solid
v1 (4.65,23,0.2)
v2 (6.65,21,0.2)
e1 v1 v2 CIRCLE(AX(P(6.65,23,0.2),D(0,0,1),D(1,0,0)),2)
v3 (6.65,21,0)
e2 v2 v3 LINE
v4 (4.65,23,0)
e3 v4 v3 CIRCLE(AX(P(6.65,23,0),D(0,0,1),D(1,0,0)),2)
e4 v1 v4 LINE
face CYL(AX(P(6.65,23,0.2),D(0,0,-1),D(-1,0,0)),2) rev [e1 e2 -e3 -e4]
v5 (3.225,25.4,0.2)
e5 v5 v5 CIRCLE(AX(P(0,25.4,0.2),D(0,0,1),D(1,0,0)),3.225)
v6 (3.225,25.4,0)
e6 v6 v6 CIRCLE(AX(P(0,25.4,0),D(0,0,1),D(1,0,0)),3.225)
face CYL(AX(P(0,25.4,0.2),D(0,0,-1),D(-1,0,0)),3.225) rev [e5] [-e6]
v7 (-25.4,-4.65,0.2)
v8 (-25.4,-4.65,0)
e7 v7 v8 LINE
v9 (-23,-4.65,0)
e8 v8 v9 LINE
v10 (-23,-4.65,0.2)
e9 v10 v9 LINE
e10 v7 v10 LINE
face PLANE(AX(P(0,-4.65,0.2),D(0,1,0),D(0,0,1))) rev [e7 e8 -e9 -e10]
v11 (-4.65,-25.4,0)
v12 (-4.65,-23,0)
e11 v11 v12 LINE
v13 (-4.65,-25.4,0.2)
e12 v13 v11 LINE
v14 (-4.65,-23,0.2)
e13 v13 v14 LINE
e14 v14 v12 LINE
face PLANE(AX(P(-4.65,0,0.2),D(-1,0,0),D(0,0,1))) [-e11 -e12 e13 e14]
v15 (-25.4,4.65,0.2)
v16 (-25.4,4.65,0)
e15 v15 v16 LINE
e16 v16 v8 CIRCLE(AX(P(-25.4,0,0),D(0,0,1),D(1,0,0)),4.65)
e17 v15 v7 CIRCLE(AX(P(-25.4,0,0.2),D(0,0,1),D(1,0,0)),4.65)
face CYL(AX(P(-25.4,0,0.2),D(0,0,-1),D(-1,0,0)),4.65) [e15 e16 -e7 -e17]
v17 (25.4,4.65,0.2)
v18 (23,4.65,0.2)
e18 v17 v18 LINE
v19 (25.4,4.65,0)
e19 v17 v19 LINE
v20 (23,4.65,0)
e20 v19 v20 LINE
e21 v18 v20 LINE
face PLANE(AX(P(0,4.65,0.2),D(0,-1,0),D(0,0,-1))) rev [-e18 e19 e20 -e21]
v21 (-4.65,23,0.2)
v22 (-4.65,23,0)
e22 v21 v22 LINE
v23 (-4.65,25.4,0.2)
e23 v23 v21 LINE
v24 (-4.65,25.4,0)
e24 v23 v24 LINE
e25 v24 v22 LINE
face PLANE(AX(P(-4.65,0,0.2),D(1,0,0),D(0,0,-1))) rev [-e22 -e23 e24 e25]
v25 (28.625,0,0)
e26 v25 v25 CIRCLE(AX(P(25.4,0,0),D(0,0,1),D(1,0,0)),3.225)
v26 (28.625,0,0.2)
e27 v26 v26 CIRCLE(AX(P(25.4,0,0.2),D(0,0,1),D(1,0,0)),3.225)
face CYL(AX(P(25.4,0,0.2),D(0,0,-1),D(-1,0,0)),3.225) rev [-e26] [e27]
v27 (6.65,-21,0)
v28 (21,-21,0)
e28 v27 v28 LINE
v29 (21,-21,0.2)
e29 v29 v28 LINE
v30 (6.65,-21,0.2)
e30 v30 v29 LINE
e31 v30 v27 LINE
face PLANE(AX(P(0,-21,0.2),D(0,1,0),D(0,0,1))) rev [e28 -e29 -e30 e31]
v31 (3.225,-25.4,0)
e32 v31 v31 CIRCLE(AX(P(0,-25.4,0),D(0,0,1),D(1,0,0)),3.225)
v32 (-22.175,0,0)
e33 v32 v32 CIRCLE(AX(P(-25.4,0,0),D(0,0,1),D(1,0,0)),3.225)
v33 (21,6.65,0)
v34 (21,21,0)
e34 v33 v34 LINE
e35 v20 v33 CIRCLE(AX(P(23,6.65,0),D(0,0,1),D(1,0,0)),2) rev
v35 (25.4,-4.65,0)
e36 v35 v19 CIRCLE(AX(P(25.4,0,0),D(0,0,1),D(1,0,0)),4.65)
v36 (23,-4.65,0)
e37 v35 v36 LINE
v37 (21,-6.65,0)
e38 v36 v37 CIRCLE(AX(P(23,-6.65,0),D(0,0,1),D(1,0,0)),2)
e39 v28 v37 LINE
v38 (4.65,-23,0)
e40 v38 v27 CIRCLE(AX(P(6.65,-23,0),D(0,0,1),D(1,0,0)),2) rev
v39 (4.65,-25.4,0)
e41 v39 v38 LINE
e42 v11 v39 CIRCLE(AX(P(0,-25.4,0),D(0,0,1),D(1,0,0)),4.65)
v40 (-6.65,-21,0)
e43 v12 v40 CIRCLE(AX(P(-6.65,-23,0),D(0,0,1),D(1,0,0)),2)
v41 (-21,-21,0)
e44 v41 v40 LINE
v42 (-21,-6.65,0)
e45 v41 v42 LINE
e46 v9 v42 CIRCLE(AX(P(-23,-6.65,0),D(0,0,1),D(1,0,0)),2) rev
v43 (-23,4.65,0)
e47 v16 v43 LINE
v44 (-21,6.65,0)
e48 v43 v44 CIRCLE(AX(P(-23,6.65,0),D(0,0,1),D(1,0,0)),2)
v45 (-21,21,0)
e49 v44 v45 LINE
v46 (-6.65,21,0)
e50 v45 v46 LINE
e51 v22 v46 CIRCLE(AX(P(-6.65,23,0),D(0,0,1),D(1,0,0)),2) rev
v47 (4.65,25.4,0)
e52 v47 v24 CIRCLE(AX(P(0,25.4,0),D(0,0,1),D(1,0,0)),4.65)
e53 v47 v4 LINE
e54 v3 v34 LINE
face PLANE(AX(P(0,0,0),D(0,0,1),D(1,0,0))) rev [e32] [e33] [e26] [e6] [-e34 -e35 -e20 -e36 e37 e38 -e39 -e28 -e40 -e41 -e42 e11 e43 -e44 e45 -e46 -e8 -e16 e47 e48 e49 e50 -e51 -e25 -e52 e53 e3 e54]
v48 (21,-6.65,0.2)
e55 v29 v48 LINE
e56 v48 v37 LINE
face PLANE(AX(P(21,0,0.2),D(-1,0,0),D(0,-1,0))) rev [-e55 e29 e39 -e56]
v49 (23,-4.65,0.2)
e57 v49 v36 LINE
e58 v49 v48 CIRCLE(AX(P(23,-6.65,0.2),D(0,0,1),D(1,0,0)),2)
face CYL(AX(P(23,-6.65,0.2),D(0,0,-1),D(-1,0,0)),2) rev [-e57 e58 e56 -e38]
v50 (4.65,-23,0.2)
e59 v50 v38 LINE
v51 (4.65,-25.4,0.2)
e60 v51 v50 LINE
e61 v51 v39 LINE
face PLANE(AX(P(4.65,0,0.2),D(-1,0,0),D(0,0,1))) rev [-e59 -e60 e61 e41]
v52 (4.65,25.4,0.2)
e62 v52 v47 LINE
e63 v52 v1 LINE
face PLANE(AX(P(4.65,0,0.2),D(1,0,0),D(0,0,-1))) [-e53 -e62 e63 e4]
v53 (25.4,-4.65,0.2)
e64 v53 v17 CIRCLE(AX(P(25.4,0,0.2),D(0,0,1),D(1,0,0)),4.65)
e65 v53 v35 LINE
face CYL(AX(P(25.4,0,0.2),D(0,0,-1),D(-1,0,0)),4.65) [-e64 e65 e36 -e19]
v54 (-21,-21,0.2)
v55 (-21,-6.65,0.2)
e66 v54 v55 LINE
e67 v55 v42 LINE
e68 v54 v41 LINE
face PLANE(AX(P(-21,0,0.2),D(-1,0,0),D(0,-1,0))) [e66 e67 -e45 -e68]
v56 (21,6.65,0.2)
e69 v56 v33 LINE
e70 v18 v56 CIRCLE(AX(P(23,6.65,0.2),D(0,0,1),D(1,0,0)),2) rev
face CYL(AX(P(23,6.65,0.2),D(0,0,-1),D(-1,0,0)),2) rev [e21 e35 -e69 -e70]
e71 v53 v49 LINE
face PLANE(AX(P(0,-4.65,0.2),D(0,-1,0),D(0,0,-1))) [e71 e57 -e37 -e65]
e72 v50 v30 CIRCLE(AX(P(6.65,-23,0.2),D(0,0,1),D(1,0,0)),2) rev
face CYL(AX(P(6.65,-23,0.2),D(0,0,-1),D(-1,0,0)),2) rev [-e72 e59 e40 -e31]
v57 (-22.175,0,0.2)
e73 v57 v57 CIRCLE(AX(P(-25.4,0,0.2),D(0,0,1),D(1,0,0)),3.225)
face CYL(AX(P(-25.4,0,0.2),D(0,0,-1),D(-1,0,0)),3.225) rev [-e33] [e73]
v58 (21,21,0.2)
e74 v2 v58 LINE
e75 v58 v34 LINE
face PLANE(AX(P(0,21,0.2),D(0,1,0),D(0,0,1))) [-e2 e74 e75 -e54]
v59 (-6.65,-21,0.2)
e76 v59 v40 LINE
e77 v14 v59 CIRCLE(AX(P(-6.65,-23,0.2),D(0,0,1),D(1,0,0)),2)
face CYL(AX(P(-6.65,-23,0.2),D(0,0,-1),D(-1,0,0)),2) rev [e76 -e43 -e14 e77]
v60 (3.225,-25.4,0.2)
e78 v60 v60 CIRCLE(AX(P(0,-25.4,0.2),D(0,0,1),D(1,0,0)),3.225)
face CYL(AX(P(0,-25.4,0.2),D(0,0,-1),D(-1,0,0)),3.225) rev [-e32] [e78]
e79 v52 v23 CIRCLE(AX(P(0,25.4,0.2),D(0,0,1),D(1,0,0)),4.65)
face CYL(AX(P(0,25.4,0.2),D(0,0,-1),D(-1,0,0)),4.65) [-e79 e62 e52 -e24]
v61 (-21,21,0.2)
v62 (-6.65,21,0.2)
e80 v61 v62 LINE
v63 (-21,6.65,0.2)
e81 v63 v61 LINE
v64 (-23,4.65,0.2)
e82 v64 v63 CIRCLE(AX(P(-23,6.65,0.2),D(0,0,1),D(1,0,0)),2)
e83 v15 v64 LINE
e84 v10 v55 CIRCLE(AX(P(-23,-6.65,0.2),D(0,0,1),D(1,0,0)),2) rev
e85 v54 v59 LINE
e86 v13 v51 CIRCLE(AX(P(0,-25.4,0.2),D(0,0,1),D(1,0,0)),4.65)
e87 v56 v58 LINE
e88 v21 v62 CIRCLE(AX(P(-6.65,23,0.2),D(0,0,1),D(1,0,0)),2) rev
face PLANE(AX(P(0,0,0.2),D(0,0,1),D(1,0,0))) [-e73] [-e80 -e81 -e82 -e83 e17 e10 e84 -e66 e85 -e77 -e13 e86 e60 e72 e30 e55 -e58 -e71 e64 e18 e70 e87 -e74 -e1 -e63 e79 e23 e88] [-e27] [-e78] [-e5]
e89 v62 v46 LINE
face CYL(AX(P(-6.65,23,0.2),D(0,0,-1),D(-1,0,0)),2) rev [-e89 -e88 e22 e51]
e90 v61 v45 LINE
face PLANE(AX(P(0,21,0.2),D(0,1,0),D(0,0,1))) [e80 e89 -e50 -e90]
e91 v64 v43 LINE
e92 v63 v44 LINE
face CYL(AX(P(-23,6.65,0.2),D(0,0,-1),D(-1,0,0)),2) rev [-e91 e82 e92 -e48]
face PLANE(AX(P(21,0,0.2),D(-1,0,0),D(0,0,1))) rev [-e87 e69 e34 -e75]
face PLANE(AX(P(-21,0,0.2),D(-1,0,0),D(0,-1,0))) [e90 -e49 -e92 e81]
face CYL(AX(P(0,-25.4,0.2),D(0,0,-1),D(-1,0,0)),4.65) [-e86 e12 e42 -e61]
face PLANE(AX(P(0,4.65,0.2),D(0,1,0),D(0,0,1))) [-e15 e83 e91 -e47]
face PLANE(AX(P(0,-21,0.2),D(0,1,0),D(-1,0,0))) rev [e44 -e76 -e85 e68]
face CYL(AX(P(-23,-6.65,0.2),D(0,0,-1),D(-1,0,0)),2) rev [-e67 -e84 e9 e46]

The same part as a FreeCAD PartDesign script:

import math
import FreeCAD as App
import Part
import Sketcher
Q = App.Units.Quantity

doc = App.newDocument("Part")
body = doc.addObject("PartDesign::Body", "Body")

sketch1 = doc.addObject("Sketcher::SketchObject", "Sketch")
body.addObject(sketch1)
sketch1.AttachmentSupport = (doc.XY_Plane, [""])
sketch1.MapMode = "FlatFace"
sketch1.addGeometry(Part.ArcOfCircle(Part.Circle(App.Vector(0, 25.4, 0), App.Vector(0, 0, 1), 4.7), math.radians(0), math.radians(180)), False)
sketch1.addGeometry(Part.LineSegment(App.Vector(-4.7, 25.4, 0), App.Vector(-4.7, 23, 0)), False)
sketch1.addGeometry(Part.ArcOfCircle(Part.Circle(App.Vector(-6.7, 23, 0), App.Vector(0, 0, 1), 2), math.radians(-90), math.radians(0)), False)
sketch1.addGeometry(Part.LineSegment(App.Vector(-6.7, 21, 0), App.Vector(-21, 21, 0)), False)
sketch1.addGeometry(Part.LineSegment(App.Vector(-21, 21, 0), App.Vector(-21, 6.7, 0)), False)
sketch1.addGeometry(Part.ArcOfCircle(Part.Circle(App.Vector(-23, 6.7, 0), App.Vector(0, 0, 1), 2), math.radians(-90), math.radians(0)), False)
sketch1.addGeometry(Part.LineSegment(App.Vector(-23, 4.7, 0), App.Vector(-25.4, 4.7, 0)), False)
sketch1.addGeometry(Part.ArcOfCircle(Part.Circle(App.Vector(-25.4, 0, 0), App.Vector(0, 0, 1), 4.7), math.radians(90), math.radians(270)), False)
sketch1.addGeometry(Part.LineSegment(App.Vector(-25.4, -4.7, 0), App.Vector(-23, -4.7, 0)), False)
sketch1.addGeometry(Part.ArcOfCircle(Part.Circle(App.Vector(-23, -6.7, 0), App.Vector(0, 0, 1), 2), math.radians(0), math.radians(90)), False)
sketch1.addGeometry(Part.LineSegment(App.Vector(-21, -6.7, 0), App.Vector(-21, -21, 0)), False)
sketch1.addGeometry(Part.LineSegment(App.Vector(-21, -21, 0), App.Vector(-6.7, -21, 0)), False)
sketch1.addGeometry(Part.ArcOfCircle(Part.Circle(App.Vector(-6.7, -23, 0), App.Vector(0, 0, 1), 2), math.radians(0), math.radians(90)), False)
sketch1.addGeometry(Part.LineSegment(App.Vector(-4.7, -23, 0), App.Vector(-4.7, -25.4, 0)), False)
sketch1.addGeometry(Part.ArcOfCircle(Part.Circle(App.Vector(0, -25.4, 0), App.Vector(0, 0, 1), 4.7), math.radians(180), math.radians(360)), False)
sketch1.addGeometry(Part.LineSegment(App.Vector(4.7, -25.4, 0), App.Vector(4.7, -23, 0)), False)
sketch1.addGeometry(Part.ArcOfCircle(Part.Circle(App.Vector(6.7, -23, 0), App.Vector(0, 0, 1), 2), math.radians(90), math.radians(180)), False)
sketch1.addGeometry(Part.LineSegment(App.Vector(6.7, -21, 0), App.Vector(21, -21, 0)), False)
sketch1.addGeometry(Part.LineSegment(App.Vector(21, -21, 0), App.Vector(21, -6.7, 0)), False)
sketch1.addGeometry(Part.ArcOfCircle(Part.Circle(App.Vector(23, -6.7, 0), App.Vector(0, 0, 1), 2), math.radians(90), math.radians(180)), False)
sketch1.addGeometry(Part.LineSegment(App.Vector(23, -4.7, 0), App.Vector(25.4, -4.7, 0)), False)
sketch1.addGeometry(Part.ArcOfCircle(Part.Circle(App.Vector(25.4, 0, 0), App.Vector(0, 0, 1), 4.7), math.radians(-90), math.radians(90)), False)
sketch1.addGeometry(Part.LineSegment(App.Vector(25.4, 4.7, 0), App.Vector(23, 4.7, 0)), False)
sketch1.addGeometry(Part.ArcOfCircle(Part.Circle(App.Vector(23, 6.7, 0), App.Vector(0, 0, 1), 2), math.radians(-180), math.radians(-90)), False)
sketch1.addGeometry(Part.LineSegment(App.Vector(21, 6.7, 0), App.Vector(21, 21, 0)), False)
sketch1.addGeometry(Part.LineSegment(App.Vector(21, 21, 0), App.Vector(6.7, 21, 0)), False)
sketch1.addGeometry(Part.ArcOfCircle(Part.Circle(App.Vector(6.7, 23, 0), App.Vector(0, 0, 1), 2), math.radians(-180), math.radians(-90)), False)
sketch1.addGeometry(Part.LineSegment(App.Vector(4.7, 23, 0), App.Vector(4.7, 25.4, 0)), False)
sketch1.addGeometry(Part.Circle(App.Vector(0, -25.4, 0), App.Vector(0, 0, 1), 3.2), False)
sketch1.addGeometry(Part.Circle(App.Vector(-25.4, 0, 0), App.Vector(0, 0, 1), 3.2), False)
sketch1.addGeometry(Part.Circle(App.Vector(25.4, 0, 0), App.Vector(0, 0, 1), 3.2), False)
sketch1.addGeometry(Part.Circle(App.Vector(0, 25.4, 0), App.Vector(0, 0, 1), 3.2), False)
sketch1.addConstraint(Sketcher.Constraint("Tangent", 0, 2, 1, 1))
sketch1.addConstraint(Sketcher.Constraint("Tangent", 1, 2, 2, 2))
sketch1.addConstraint(Sketcher.Constraint("Tangent", 2, 1, 3, 1))
sketch1.addConstraint(Sketcher.Constraint("Coincident", 3, 2, 4, 1))
sketch1.addConstraint(Sketcher.Constraint("Tangent", 4, 2, 5, 2))
sketch1.addConstraint(Sketcher.Constraint("Tangent", 5, 1, 6, 1))
sketch1.addConstraint(Sketcher.Constraint("Tangent", 6, 2, 7, 1))
sketch1.addConstraint(Sketcher.Constraint("Tangent", 7, 2, 8, 1))
sketch1.addConstraint(Sketcher.Constraint("Tangent", 8, 2, 9, 2))
sketch1.addConstraint(Sketcher.Constraint("Tangent", 9, 1, 10, 1))
sketch1.addConstraint(Sketcher.Constraint("Coincident", 10, 2, 11, 1))
sketch1.addConstraint(Sketcher.Constraint("Tangent", 11, 2, 12, 2))
sketch1.addConstraint(Sketcher.Constraint("Tangent", 12, 1, 13, 1))
sketch1.addConstraint(Sketcher.Constraint("Tangent", 13, 2, 14, 1))
sketch1.addConstraint(Sketcher.Constraint("Tangent", 14, 2, 15, 1))
sketch1.addConstraint(Sketcher.Constraint("Tangent", 15, 2, 16, 2))
sketch1.addConstraint(Sketcher.Constraint("Tangent", 16, 1, 17, 1))
sketch1.addConstraint(Sketcher.Constraint("Coincident", 17, 2, 18, 1))
sketch1.addConstraint(Sketcher.Constraint("Tangent", 18, 2, 19, 2))
sketch1.addConstraint(Sketcher.Constraint("Tangent", 19, 1, 20, 1))
sketch1.addConstraint(Sketcher.Constraint("Tangent", 20, 2, 21, 1))
sketch1.addConstraint(Sketcher.Constraint("Tangent", 21, 2, 22, 1))
sketch1.addConstraint(Sketcher.Constraint("Tangent", 22, 2, 23, 2))
sketch1.addConstraint(Sketcher.Constraint("Tangent", 23, 1, 24, 1))
sketch1.addConstraint(Sketcher.Constraint("Coincident", 24, 2, 25, 1))
sketch1.addConstraint(Sketcher.Constraint("Tangent", 25, 2, 26, 2))
sketch1.addConstraint(Sketcher.Constraint("Tangent", 26, 1, 27, 1))
sketch1.addConstraint(Sketcher.Constraint("Tangent", 27, 2, 0, 1))
sketch1.addConstraint(Sketcher.Constraint("Vertical", 1))
sketch1.addConstraint(Sketcher.Constraint("Horizontal", 3))
sketch1.addConstraint(Sketcher.Constraint("Vertical", 4))
sketch1.addConstraint(Sketcher.Constraint("Horizontal", 6))
sketch1.addConstraint(Sketcher.Constraint("Horizontal", 8))
sketch1.addConstraint(Sketcher.Constraint("Vertical", 10))
sketch1.addConstraint(Sketcher.Constraint("Horizontal", 11))
sketch1.addConstraint(Sketcher.Constraint("Vertical", 13))
sketch1.addConstraint(Sketcher.Constraint("Vertical", 15))
sketch1.addConstraint(Sketcher.Constraint("Horizontal", 17))
sketch1.addConstraint(Sketcher.Constraint("Vertical", 18))
sketch1.addConstraint(Sketcher.Constraint("Horizontal", 20))
sketch1.addConstraint(Sketcher.Constraint("Horizontal", 22))
sketch1.addConstraint(Sketcher.Constraint("Vertical", 24))
sketch1.addConstraint(Sketcher.Constraint("Horizontal", 25))
sketch1.addConstraint(Sketcher.Constraint("Vertical", 27))
sketch1.addConstraint(Sketcher.Constraint("Coincident", 28, 3, 14, 3))
sketch1.addConstraint(Sketcher.Constraint("Coincident", 29, 3, 7, 3))
sketch1.addConstraint(Sketcher.Constraint("Coincident", 30, 3, 21, 3))
sketch1.addConstraint(Sketcher.Constraint("Coincident", 31, 3, 0, 3))
sketch1.addConstraint(Sketcher.Constraint("Equal", 2, 5))
sketch1.addConstraint(Sketcher.Constraint("Equal", 0, 7))
sketch1.addConstraint(Sketcher.Constraint("Equal", 5, 9))
sketch1.addConstraint(Sketcher.Constraint("Equal", 9, 12))
sketch1.addConstraint(Sketcher.Constraint("Equal", 7, 14))
sketch1.addConstraint(Sketcher.Constraint("Equal", 12, 16))
sketch1.addConstraint(Sketcher.Constraint("Equal", 16, 19))
sketch1.addConstraint(Sketcher.Constraint("Equal", 14, 21))
sketch1.addConstraint(Sketcher.Constraint("Equal", 19, 23))
sketch1.addConstraint(Sketcher.Constraint("Equal", 23, 26))
sketch1.addConstraint(Sketcher.Constraint("Equal", 28, 29))
sketch1.addConstraint(Sketcher.Constraint("Equal", 29, 30))
sketch1.addConstraint(Sketcher.Constraint("Equal", 30, 31))
sketch1.addConstraint(Sketcher.Constraint("Symmetric", 0, 3, 14, 3, -1, 1))
sketch1.addConstraint(Sketcher.Constraint("Symmetric", 5, 3, 19, 3, -1, 1))
sketch1.addConstraint(Sketcher.Constraint("Symmetric", 10, 2, 24, 2, -1, 1))
sketch1.addConstraint(Sketcher.Constraint("Symmetric", 12, 3, 16, 3, -2))
sketch1.addConstraint(Sketcher.Constraint("Symmetric", 9, 3, 19, 3, -2))
sketch1.addConstraint(Sketcher.Constraint("Horizontal", 2, 3, 26, 3))
sketch1.addConstraint(Sketcher.Constraint("Equal", 8, 20))
sketch1.addConstraint(Sketcher.Constraint("Equal", 22, 1))
sketch1.addConstraint(Sketcher.Constraint("Equal", 25, 4))
sketch1.addConstraint(Sketcher.Constraint("Radius", 2, Q("2 mm")))
sketch1.addConstraint(Sketcher.Constraint("Diameter", 28, Q("6.45 mm")))
sketch1.addConstraint(Sketcher.Constraint("Radius", 0, Q("4.65 mm")))
sketch1.addConstraint(Sketcher.Constraint("DistanceX", 6, 2, 6, 1, Q("2.4 mm")))
sketch1.addConstraint(Sketcher.Constraint("DistanceY", -1, 1, 2, 3, Q("23 mm")))
pad1 = doc.addObject("PartDesign::Pad", "Pad")
body.addObject(pad1)
pad1.Profile = sketch1
pad1.Length = 0.2

doc.recompute()
